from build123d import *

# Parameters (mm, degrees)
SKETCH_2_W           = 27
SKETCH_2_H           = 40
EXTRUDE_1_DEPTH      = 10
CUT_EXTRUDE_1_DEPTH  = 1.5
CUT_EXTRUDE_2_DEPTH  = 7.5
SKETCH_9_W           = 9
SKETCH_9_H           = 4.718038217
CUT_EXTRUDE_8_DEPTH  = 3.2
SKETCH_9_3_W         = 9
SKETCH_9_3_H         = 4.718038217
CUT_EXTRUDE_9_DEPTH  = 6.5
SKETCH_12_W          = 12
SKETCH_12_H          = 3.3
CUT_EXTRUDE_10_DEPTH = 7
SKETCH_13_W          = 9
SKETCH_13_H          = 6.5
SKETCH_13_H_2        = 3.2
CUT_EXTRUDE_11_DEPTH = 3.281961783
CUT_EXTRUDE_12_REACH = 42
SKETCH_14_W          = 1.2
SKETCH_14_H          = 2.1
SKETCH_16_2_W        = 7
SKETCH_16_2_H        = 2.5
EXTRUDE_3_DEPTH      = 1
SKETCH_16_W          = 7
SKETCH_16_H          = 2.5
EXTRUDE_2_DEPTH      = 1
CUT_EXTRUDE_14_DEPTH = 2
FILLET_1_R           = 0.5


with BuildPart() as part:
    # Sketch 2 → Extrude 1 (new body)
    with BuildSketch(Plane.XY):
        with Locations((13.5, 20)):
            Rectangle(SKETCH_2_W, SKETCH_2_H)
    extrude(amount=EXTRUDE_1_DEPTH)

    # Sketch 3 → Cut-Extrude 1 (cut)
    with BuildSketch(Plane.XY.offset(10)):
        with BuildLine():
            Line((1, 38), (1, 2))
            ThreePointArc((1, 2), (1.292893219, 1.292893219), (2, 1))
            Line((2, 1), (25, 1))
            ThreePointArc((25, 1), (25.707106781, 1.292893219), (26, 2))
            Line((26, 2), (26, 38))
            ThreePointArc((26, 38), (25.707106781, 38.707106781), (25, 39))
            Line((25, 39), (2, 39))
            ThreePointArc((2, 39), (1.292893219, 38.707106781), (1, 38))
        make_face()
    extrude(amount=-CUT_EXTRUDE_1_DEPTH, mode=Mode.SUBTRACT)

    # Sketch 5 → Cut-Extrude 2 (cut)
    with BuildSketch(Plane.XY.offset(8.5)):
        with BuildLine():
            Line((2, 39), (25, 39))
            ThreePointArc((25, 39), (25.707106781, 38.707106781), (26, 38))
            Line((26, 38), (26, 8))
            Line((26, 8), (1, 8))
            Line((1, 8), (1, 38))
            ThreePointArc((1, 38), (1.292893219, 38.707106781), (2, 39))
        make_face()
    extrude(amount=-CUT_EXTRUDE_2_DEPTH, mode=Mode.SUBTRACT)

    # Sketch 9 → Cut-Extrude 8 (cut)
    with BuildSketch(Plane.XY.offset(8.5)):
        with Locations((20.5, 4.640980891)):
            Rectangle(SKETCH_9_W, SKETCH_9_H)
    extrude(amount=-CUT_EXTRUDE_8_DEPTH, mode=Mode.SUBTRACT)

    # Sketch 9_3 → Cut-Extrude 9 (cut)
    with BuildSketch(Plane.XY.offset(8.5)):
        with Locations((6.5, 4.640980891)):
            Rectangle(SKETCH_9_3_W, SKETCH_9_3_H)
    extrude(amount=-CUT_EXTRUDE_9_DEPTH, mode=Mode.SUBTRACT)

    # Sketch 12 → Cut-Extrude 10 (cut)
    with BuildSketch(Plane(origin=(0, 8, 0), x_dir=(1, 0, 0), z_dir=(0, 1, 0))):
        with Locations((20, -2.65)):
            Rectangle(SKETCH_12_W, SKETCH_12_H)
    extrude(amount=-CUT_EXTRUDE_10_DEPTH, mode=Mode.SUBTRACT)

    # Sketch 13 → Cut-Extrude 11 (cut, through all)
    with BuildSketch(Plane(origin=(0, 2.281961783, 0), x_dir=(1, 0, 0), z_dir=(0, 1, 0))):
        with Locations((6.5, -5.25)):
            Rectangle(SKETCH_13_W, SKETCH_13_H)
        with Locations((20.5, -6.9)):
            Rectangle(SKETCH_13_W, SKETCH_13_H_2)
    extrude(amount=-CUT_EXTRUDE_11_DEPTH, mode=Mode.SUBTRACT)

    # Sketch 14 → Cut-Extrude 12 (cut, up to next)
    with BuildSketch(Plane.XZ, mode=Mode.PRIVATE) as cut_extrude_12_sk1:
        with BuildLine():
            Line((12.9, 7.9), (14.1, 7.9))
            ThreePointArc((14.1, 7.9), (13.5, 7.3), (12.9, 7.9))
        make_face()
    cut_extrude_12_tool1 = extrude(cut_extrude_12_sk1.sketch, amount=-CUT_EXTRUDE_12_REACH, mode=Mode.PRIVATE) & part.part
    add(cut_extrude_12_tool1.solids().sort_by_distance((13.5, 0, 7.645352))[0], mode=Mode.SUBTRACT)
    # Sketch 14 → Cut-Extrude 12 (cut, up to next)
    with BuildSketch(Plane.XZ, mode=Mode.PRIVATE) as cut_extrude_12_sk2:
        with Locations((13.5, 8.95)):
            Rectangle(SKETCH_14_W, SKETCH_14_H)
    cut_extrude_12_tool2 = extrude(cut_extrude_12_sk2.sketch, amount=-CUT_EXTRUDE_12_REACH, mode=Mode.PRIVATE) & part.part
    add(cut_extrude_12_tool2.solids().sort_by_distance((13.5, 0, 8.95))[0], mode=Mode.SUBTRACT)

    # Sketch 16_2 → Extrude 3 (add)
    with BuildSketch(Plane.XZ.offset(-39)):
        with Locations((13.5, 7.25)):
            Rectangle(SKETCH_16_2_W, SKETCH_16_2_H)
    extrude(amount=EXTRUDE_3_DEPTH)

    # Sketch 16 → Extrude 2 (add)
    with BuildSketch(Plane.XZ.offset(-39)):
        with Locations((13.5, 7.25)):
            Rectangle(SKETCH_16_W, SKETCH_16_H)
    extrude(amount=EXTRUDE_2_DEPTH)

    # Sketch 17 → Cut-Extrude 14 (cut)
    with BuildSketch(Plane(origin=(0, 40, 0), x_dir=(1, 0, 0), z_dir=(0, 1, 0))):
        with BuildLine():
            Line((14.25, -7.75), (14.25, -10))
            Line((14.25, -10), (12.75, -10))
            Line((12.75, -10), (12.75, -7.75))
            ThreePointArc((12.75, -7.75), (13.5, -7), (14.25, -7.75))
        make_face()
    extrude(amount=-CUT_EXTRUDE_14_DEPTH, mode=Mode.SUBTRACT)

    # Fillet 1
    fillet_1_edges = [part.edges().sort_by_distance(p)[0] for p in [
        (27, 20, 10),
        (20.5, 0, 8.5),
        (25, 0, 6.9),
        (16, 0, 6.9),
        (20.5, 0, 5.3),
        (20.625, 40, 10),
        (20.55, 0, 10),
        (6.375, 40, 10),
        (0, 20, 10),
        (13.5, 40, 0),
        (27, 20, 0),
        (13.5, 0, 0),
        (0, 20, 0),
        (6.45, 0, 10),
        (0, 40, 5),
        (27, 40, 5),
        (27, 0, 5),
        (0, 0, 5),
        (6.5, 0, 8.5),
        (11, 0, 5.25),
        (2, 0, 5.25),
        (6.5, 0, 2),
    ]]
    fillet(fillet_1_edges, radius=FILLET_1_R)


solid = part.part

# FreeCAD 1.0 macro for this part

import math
import FreeCAD as App
import Part
import Sketcher
Q = App.Units.Quantity


def edges_at(feature, points):
    """Names of the edges that pass closest to the given points."""
    edges = feature.Shape.Edges
    near = lambda p: min(range(len(edges)), key=lambda i: edges[i].distToShape(Part.Vertex(*p))[0])
    return sorted({f"Edge{near(p) + 1}" for p in points})


def add_polygon(sketch, points):
    """Adds a closed chain of lines whose ends are joined by coincident constraints."""
    first, n = sketch.GeometryCount, len(points)
    for a, b in zip(points, points[1:] + points[:1]):
        sketch.addGeometry(Part.LineSegment(App.Vector(*a, 0), App.Vector(*b, 0)), False)
    for i in range(n):
        sketch.addConstraint(Sketcher.Constraint("Coincident", first + i, 2, first + (i + 1) % n, 1))

doc = App.newDocument("Part")
body = doc.addObject("PartDesign::Body", "Body")

sketch1 = body.newObject("Sketcher::SketchObject", "Sketch")
sketch1.AttachmentSupport = (doc.getObject("XY_Plane"), [""])
sketch1.MapMode = "FlatFace"
add_polygon(sketch1, [(0, 40), (0, 0), (27, 0), (27, 40)])
sketch1.addConstraint([
    Sketcher.Constraint("Vertical", 0),
    Sketcher.Constraint("Horizontal", 1),
    Sketcher.Constraint("Vertical", 2),
    Sketcher.Constraint("Horizontal", 3),
    Sketcher.Constraint("Coincident", 0, 2, -1, 1),
    Sketcher.Constraint("DistanceX", 1, 1, 1, 2, Q("27 mm")),
    Sketcher.Constraint("DistanceY", 0, 2, 0, 1, Q("40 mm")),
])
pad1 = body.newObject("PartDesign::Pad", "Pad")
pad1.Profile = sketch1
pad1.Length = 10

sketch2 = body.newObject("Sketcher::SketchObject", "Sketch001")
sketch2.AttachmentSupport = (doc.getObject("XY_Plane"), [""])
sketch2.MapMode = "FlatFace"
sketch2.AttachmentOffset = App.Placement(App.Vector(0, 0, 10), App.Rotation())
sketch2.addGeometry([
    Part.LineSegment(App.Vector(1, 38, 0), App.Vector(1, 2, 0)),
    Part.ArcOfCircle(Part.Circle(App.Vector(2, 2, 0), App.Vector(0, 0, 1), 1), math.radians(-180), math.radians(-90)),
    Part.LineSegment(App.Vector(2, 1, 0), App.Vector(25, 1, 0)),
    Part.ArcOfCircle(Part.Circle(App.Vector(25, 2, 0), App.Vector(0, 0, 1), 1), math.radians(-90), math.radians(0)),
    Part.LineSegment(App.Vector(26, 2, 0), App.Vector(26, 38, 0)),
    Part.ArcOfCircle(Part.Circle(App.Vector(25, 38, 0), App.Vector(0, 0, 1), 1), math.radians(0), math.radians(90)),
    Part.LineSegment(App.Vector(25, 39, 0), App.Vector(2, 39, 0)),
    Part.ArcOfCircle(Part.Circle(App.Vector(2, 38, 0), App.Vector(0, 0, 1), 1), math.radians(90), math.radians(180)),
], False)
sketch2.addConstraint([
    Sketcher.Constraint("Tangent", 0, 2, 1, 1),
    Sketcher.Constraint("Tangent", 1, 2, 2, 1),
    Sketcher.Constraint("Tangent", 2, 2, 3, 1),
    Sketcher.Constraint("Tangent", 3, 2, 4, 1),
    Sketcher.Constraint("Tangent", 4, 2, 5, 1),
    Sketcher.Constraint("Tangent", 5, 2, 6, 1),
    Sketcher.Constraint("Tangent", 6, 2, 7, 1),
    Sketcher.Constraint("Tangent", 7, 2, 0, 1),
    Sketcher.Constraint("Vertical", 0),
    Sketcher.Constraint("Horizontal", 2),
    Sketcher.Constraint("Vertical", 4),
    Sketcher.Constraint("Horizontal", 6),
    Sketcher.Constraint("Equal", 1, 3),
    Sketcher.Constraint("Equal", 3, 5),
    Sketcher.Constraint("Equal", 5, 7),
    Sketcher.Constraint("Radius", 1, Q("1 mm")),
    Sketcher.Constraint("DistanceX", 2, 1, 2, 2, Q("23 mm")),
    Sketcher.Constraint("DistanceY", 0, 2, 0, 1, Q("36 mm")),
    Sketcher.Constraint("DistanceX", -1, 1, 1, 3, Q("2 mm")),
    Sketcher.Constraint("DistanceY", -1, 1, 1, 3, Q("2 mm")),
])
pocket1 = body.newObject("PartDesign::Pocket", "Pocket")
pocket1.Profile = sketch2
pocket1.Length = 1.5

sketch3 = body.newObject("Sketcher::SketchObject", "Sketch002")
sketch3.AttachmentSupport = (doc.getObject("XY_Plane"), [""])
sketch3.MapMode = "FlatFace"
sketch3.AttachmentOffset = App.Placement(App.Vector(0, 0, 8.5), App.Rotation())
sketch3.addGeometry([
    Part.LineSegment(App.Vector(25, 39, 0), App.Vector(2, 39, 0)),
    Part.ArcOfCircle(Part.Circle(App.Vector(2, 38, 0), App.Vector(0, 0, 1), 1), math.radians(90), math.radians(180)),
    Part.LineSegment(App.Vector(1, 38, 0), App.Vector(1, 8, 0)),
    Part.LineSegment(App.Vector(1, 8, 0), App.Vector(26, 8, 0)),
    Part.LineSegment(App.Vector(26, 8, 0), App.Vector(26, 38, 0)),
    Part.ArcOfCircle(Part.Circle(App.Vector(25, 38, 0), App.Vector(0, 0, 1), 1), math.radians(0), math.radians(90)),
], False)
sketch3.addConstraint([
    Sketcher.Constraint("Tangent", 0, 2, 1, 1),
    Sketcher.Constraint("Tangent", 1, 2, 2, 1),
    Sketcher.Constraint("Coincident", 2, 2, 3, 1),
    Sketcher.Constraint("Coincident", 3, 2, 4, 1),
    Sketcher.Constraint("Tangent", 4, 2, 5, 1),
    Sketcher.Constraint("Tangent", 5, 2, 0, 1),
    Sketcher.Constraint("Horizontal", 0),
    Sketcher.Constraint("Vertical", 2),
    Sketcher.Constraint("Horizontal", 3),
    Sketcher.Constraint("Vertical", 4),
    Sketcher.Constraint("Equal", 1, 5),
    Sketcher.Constraint("Radius", 1, Q("1 mm")),
    Sketcher.Constraint("DistanceX", 0, 2, 0, 1, Q("23 mm")),
    Sketcher.Constraint("DistanceY", 2, 2, 2, 1, Q("30 mm")),
    Sketcher.Constraint("DistanceX", -1, 1, 1, 3, Q("2 mm")),
    Sketcher.Constraint("DistanceY", -1, 1, 1, 3, Q("38 mm")),
])
pocket2 = body.newObject("PartDesign::Pocket", "Pocket001")
pocket2.Profile = sketch3
pocket2.Length = 7.5

sketch4 = body.newObject("Sketcher::SketchObject", "Sketch003")
sketch4.AttachmentSupport = (doc.getObject("XY_Plane"), [""])
sketch4.MapMode = "FlatFace"
sketch4.AttachmentOffset = App.Placement(App.Vector(0, 0, 8.5), App.Rotation())
add_polygon(sketch4, [(16, 7), (16, 2.3), (25, 2.3), (25, 7)])
sketch4.addConstraint([
    Sketcher.Constraint("Vertical", 0),
    Sketcher.Constraint("Horizontal", 1),
    Sketcher.Constraint("Vertical", 2),
    Sketcher.Constraint("Horizontal", 3),
    Sketcher.Constraint("DistanceX", 1, 1, 1, 2, Q("9 mm")),
    Sketcher.Constraint("DistanceX", -1, 1, 0, 2, Q("16 mm")),
    Sketcher.Constraint("DistanceY", -1, 1, 2, 2, Q("7 mm")),
    Sketcher.Constraint("DistanceY", 0, 2, 0, 1, Q("4.718038 mm")),
])
pocket3 = body.newObject("PartDesign::Pocket", "Pocket002")
pocket3.Profile = sketch4
pocket3.Length = 3.2

sketch5 = body.newObject("Sketcher::SketchObject", "Sketch004")
sketch5.AttachmentSupport = (doc.getObject("XY_Plane"), [""])
sketch5.MapMode = "FlatFace"
sketch5.AttachmentOffset = App.Placement(App.Vector(0, 0, 8.5), App.Rotation())
add_polygon(sketch5, [(2, 7), (2, 2.3), (11, 2.3), (11, 7)])
sketch5.addConstraint([
    Sketcher.Constraint("Vertical", 0),
    Sketcher.Constraint("Horizontal", 1),
    Sketcher.Constraint("Vertical", 2),
    Sketcher.Constraint("Horizontal", 3),
    Sketcher.Constraint("DistanceX", 1, 1, 1, 2, Q("9 mm")),
    Sketcher.Constraint("DistanceX", -1, 1, 0, 2, Q("2 mm")),
    Sketcher.Constraint("DistanceY", -1, 1, 2, 2, Q("7 mm")),
    Sketcher.Constraint("DistanceY", 0, 2, 0, 1, Q("4.718038 mm")),
])
pocket4 = body.newObject("PartDesign::Pocket", "Pocket003")
pocket4.Profile = sketch5
pocket4.Length = 6.5

sketch6 = body.newObject("Sketcher::SketchObject", "Sketch005")
sketch6.AttachmentSupport = (doc.getObject("XZ_Plane"), [""])
sketch6.MapMode = "FlatFace"
sketch6.AttachmentOffset = App.Placement(App.Vector(0, 0, -8), App.Rotation())
add_polygon(sketch6, [(14, 1), (14, 4.3), (26, 4.3), (26, 1)])
sketch6.addConstraint([
    Sketcher.Constraint("Vertical", 0),
    Sketcher.Constraint("Horizontal", 1),
    Sketcher.Constraint("Vertical", 2),
    Sketcher.Constraint("Horizontal", 3),
    Sketcher.Constraint("DistanceX", 1, 1, 1, 2, Q("12 mm")),
    Sketcher.Constraint("DistanceY", 0, 1, 0, 2, Q("3.3 mm")),
    Sketcher.Constraint("DistanceX", -1, 1, 0, 2, Q("14 mm")),
    Sketcher.Constraint("DistanceY", -1, 1, 2, 2, Q("1 mm")),
])
pocket5 = body.newObject("PartDesign::Pocket", "Pocket004")
pocket5.Profile = sketch6
pocket5.Length = 7
pocket5.Reversed = True

sketch7 = body.newObject("Sketcher::SketchObject", "Sketch006")
sketch7.AttachmentSupport = (doc.getObject("XZ_Plane"), [""])
sketch7.MapMode = "FlatFace"
sketch7.AttachmentOffset = App.Placement(App.Vector(0, 0, -2.281962), App.Rotation())
add_polygon(sketch7, [(2, 2), (2, 8.5), (11, 8.5), (11, 2)])
add_polygon(sketch7, [(16, 5.3), (16, 8.5), (25, 8.5), (25, 5.3)])
sketch7.addConstraint([
    Sketcher.Constraint("Vertical", 0),
    Sketcher.Constraint("Horizontal", 1),
    Sketcher.Constraint("Vertical", 2),
    Sketcher.Constraint("Horizontal", 3),
    Sketcher.Constraint("Vertical", 4),
    Sketcher.Constraint("Horizontal", 5),
    Sketcher.Constraint("Vertical", 6),
    Sketcher.Constraint("Horizontal", 7),
    Sketcher.Constraint("Horizontal", 1, 2, 4, 2),
    Sketcher.Constraint("Equal", 3, 5),
    Sketcher.Constraint("DistanceX", 1, 1, 1, 2, Q("9 mm")),
    Sketcher.Constraint("DistanceY", 0, 1, 0, 2, Q("6.5 mm")),
    Sketcher.Constraint("DistanceY", 4, 1, 4, 2, Q("3.2 mm")),
    Sketcher.Constraint("DistanceX", -1, 1, 0, 2, Q("2 mm")),
    Sketcher.Constraint("DistanceY", -1, 1, 2, 2, Q("2 mm")),
    Sketcher.Constraint("DistanceX", -1, 1, 4, 2, Q("16 mm")),
])
pocket6 = body.newObject("PartDesign::Pocket", "Pocket005")
pocket6.Profile = sketch7
pocket6.Type = "ThroughAll"
pocket6.Reversed = True

sketch8 = body.newObject("Sketcher::SketchObject", "Sketch007")
sketch8.AttachmentSupport = (doc.getObject("XZ_Plane"), [""])
sketch8.MapMode = "FlatFace"
sketch8.addGeometry([
    Part.LineSegment(App.Vector(14.1, 7.9, 0), App.Vector(12.9, 7.9, 0)),
    Part.ArcOfCircle(Part.Circle(App.Vector(13.5, 7.9, 0), App.Vector(0, 0, 1), 0.6), math.radians(180), math.radians(360)),
], False)
sketch8.addConstraint([
    Sketcher.Constraint("Coincident", 0, 1, 1, 2),
    Sketcher.Constraint("Coincident", 1, 1, 0, 2),
    Sketcher.Constraint("Horizontal", 0),
    Sketcher.Constraint("Horizontal", 1, 3, 0, 1),
    Sketcher.Constraint("Radius", 1, Q("0.6 mm")),
    Sketcher.Constraint("DistanceX", -1, 1, 1, 3, Q("13.5 mm")),
    Sketcher.Constraint("DistanceY", -1, 1, 1, 3, Q("7.9 mm")),
])
pocket7 = body.newObject("PartDesign::Pocket", "Pocket006")
pocket7.Profile = sketch8
pocket7.Type = "UpToFirst"

sketch9 = body.newObject("Sketcher::SketchObject", "Sketch008")
sketch9.AttachmentSupport = (doc.getObject("XZ_Plane"), [""])
sketch9.MapMode = "FlatFace"
add_polygon(sketch9, [(12.9, 10), (12.9, 7.9), (14.1, 7.9), (14.1, 10)])
sketch9.addConstraint([
    Sketcher.Constraint("Vertical", 0),
    Sketcher.Constraint("Horizontal", 1),
    Sketcher.Constraint("Vertical", 2),
    Sketcher.Constraint("Horizontal", 3),
    Sketcher.Constraint("DistanceX", 1, 1, 1, 2, Q("1.2 mm")),
    Sketcher.Constraint("DistanceY", 0, 2, 0, 1, Q("2.1 mm")),
    Sketcher.Constraint("DistanceY", -1, 1, 2, 2, Q("10 mm")),
    Sketcher.Constraint("DistanceX", -1, 1, 0, 2, Q("12.9 mm")),
])
pocket8 = body.newObject("PartDesign::Pocket", "Pocket007")
pocket8.Profile = sketch9
pocket8.Length = 8

sketch10 = body.newObject("Sketcher::SketchObject", "Sketch009")
sketch10.AttachmentSupport = (doc.getObject("XZ_Plane"), [""])
sketch10.MapMode = "FlatFace"
sketch10.AttachmentOffset = App.Placement(App.Vector(0, 0, -39), App.Rotation())
add_polygon(sketch10, [(10, 8.5), (10, 6), (17, 6), (17, 8.5)])
sketch10.addConstraint([
    Sketcher.Constraint("Vertical", 0),
    Sketcher.Constraint("Horizontal", 1),
    Sketcher.Constraint("Vertical", 2),
    Sketcher.Constraint("Horizontal", 3),
    Sketcher.Constraint("DistanceX", 1, 1, 1, 2, Q("7 mm")),
    Sketcher.Constraint("DistanceY", 0, 2, 0, 1, Q("2.5 mm")),
    Sketcher.Constraint("DistanceX", -1, 1, 0, 2, Q("10 mm")),
    Sketcher.Constraint("DistanceY", -1, 1, 0, 2, Q("6 mm")),
])
pad2 = body.newObject("PartDesign::Pad", "Pad001")
pad2.Profile = sketch10
pad2.Length = 1

sketch11 = body.newObject("Sketcher::SketchObject", "Sketch010")
sketch11.AttachmentSupport = (doc.getObject("XZ_Plane"), [""])
sketch11.MapMode = "FlatFace"
sketch11.AttachmentOffset = App.Placement(App.Vector(0, 0, -39), App.Rotation())
add_polygon(sketch11, [(10, 8.5), (10, 6), (17, 6), (17, 8.5)])
sketch11.addConstraint([
    Sketcher.Constraint("Vertical", 0),
    Sketcher.Constraint("Horizontal", 1),
    Sketcher.Constraint("Vertical", 2),
    Sketcher.Constraint("Horizontal", 3),
    Sketcher.Constraint("DistanceX", 1, 1, 1, 2, Q("7 mm")),
    Sketcher.Constraint("DistanceY", 0, 2, 0, 1, Q("2.5 mm")),
    Sketcher.Constraint("DistanceX", -1, 1, 0, 2, Q("10 mm")),
    Sketcher.Constraint("DistanceY", -1, 1, 0, 2, Q("6 mm")),
])
pad3 = body.newObject("PartDesign::Pad", "Pad002")
pad3.Profile = sketch11
pad3.Length = 1

sketch12 = body.newObject("Sketcher::SketchObject", "Sketch011")
sketch12.AttachmentSupport = (doc.getObject("XZ_Plane"), [""])
sketch12.MapMode = "FlatFace"
sketch12.AttachmentOffset = App.Placement(App.Vector(0, 0, -40), App.Rotation())
sketch12.addGeometry([
    Part.LineSegment(App.Vector(14.2, 10, 0), App.Vector(14.2, 7.8, 0)),
    Part.ArcOfCircle(Part.Circle(App.Vector(13.5, 7.8, 0), App.Vector(0, 0, 1), 0.8), math.radians(180), math.radians(360)),
    Part.LineSegment(App.Vector(12.8, 7.8, 0), App.Vector(12.8, 10, 0)),
    Part.LineSegment(App.Vector(12.8, 10, 0), App.Vector(14.2, 10, 0)),
], False)
sketch12.addConstraint([
    Sketcher.Constraint("Tangent", 0, 2, 1, 2),
    Sketcher.Constraint("Tangent", 1, 1, 2, 1),
    Sketcher.Constraint("Coincident", 2, 2, 3, 1),
    Sketcher.Constraint("Coincident", 3, 2, 0, 1),
    Sketcher.Constraint("Vertical", 0),
    Sketcher.Constraint("Vertical", 2),
    Sketcher.Constraint("Horizontal", 3),
    Sketcher.Constraint("Radius", 1, Q("0.75 mm")),
    Sketcher.Constraint("DistanceY", -1, 1, 2, 2, Q("10 mm")),
    Sketcher.Constraint("DistanceY", 0, 2, 0, 1, Q("2.25 mm")),
    Sketcher.Constraint("DistanceX", -1, 1, 1, 3, Q("13.5 mm")),
])
pocket9 = body.newObject("PartDesign::Pocket", "Pocket008")
pocket9.Profile = sketch12
pocket9.Length = 2
pocket9.Reversed = True
doc.recompute()

fillet = body.newObject("PartDesign::Fillet", "Fillet")
fillet.Base = (pocket9, edges_at(pocket9, [
    (27, 20, 10),
    (20.5, 0, 8.5),
    (25, 0, 6.9),
    (16, 0, 6.9),
    (20.5, 0, 5.3),
    (20.625, 40, 10),
    (20.55, 0, 10),
    (6.375, 40, 10),
    (0, 20, 10),
    (13.5, 40, 0),
    (27, 20, 0),
    (13.5, 0, 0),
    (0, 20, 0),
    (6.45, 0, 10),
    (0, 40, 5),
    (27, 40, 5),
    (27, 0, 5),
    (0, 0, 5),
    (6.5, 0, 8.5),
    (11, 0, 5.25),
    (2, 0, 5.25),
    (6.5, 0, 2),
]))
fillet.Radius = 0.5

doc.recompute()
